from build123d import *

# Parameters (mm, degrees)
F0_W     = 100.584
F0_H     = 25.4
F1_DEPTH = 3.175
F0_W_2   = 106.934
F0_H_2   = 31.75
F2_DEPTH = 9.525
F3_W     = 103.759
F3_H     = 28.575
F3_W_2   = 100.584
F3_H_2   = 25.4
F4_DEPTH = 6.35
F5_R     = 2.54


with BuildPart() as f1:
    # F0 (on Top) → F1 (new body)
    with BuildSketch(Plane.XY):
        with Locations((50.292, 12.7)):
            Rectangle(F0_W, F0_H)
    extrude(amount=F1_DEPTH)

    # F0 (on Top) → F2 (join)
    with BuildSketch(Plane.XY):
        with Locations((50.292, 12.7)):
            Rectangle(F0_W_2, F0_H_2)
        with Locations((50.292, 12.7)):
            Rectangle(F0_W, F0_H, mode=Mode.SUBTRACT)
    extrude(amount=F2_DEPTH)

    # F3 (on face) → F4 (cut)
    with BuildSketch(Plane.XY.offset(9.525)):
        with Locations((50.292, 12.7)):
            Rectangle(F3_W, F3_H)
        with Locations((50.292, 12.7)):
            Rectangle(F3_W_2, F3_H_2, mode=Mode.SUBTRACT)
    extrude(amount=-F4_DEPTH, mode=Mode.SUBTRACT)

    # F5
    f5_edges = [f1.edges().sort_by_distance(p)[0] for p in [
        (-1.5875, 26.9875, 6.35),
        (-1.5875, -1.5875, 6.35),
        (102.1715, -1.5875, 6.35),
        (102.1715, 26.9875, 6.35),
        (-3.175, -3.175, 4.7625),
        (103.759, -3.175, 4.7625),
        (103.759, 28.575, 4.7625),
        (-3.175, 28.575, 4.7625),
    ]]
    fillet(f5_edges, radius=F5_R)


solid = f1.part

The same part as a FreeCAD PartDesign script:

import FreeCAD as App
import Part
import Sketcher
Q = App.Units.Quantity


def edges_at(feature, points):
    """Names of the edges that pass closest to the given points."""
    edges = feature.Shape.Edges
    near = lambda p: min(range(len(edges)), key=lambda i: edges[i].distToShape(Part.Vertex(*p))[0])
    return sorted({f"Edge{near(p) + 1}" for p in points})


def add_polygon(sketch, points):
    """Adds a closed chain of lines whose ends are joined by coincident constraints."""
    first, n = sketch.GeometryCount, len(points)
    for a, b in zip(points, points[1:] + points[:1]):
        sketch.addGeometry(Part.LineSegment(App.Vector(*a, 0), App.Vector(*b, 0)), False)
    for i in range(n):
        sketch.addConstraint(Sketcher.Constraint("Coincident", first + i, 2, first + (i + 1) % n, 1))

doc = App.newDocument("Part")
body = doc.addObject("PartDesign::Body", "Body")

# Sketch on XY plane
sketch1 = doc.addObject("Sketcher::SketchObject", "Sketch")
body.addObject(sketch1)
sketch1.AttachmentSupport = (doc.XY_Plane, [""])
sketch1.MapMode = "FlatFace"
add_polygon(sketch1, [(0, 25), (0, 0), (101, 0), (101, 25)])  # lines 0-3
sketch1.addConstraint([
    Sketcher.Constraint("Vertical", 0),
    Sketcher.Constraint("Horizontal", 1),
    Sketcher.Constraint("Vertical", 2),
    Sketcher.Constraint("Horizontal", 3),
    Sketcher.Constraint("Coincident", 0, 2, -1, 1),
    Sketcher.Constraint("DistanceY", 0, 2, 0, 1, Q("1 in")),
    Sketcher.Constraint("DistanceX", 1, 1, 1, 2, Q("3.96 in")),
])
pad1 = doc.addObject("PartDesign::Pad", "Pad")
body.addObject(pad1)
pad1.Profile = sketch1
pad1.Length = Q("0.125 in")

# Sketch on XY plane
sketch2 = doc.addObject("Sketcher::SketchObject", "Sketch001")
body.addObject(sketch2)
sketch2.AttachmentSupport = (doc.XY_Plane, [""])
sketch2.MapMode = "FlatFace"
add_polygon(sketch2, [(-3, 29), (-3, -3), (104, -3), (104, 29)])  # lines 0-3
add_polygon(sketch2, [(101, 0), (0, 0), (0, 25), (101, 25)])  # lines 4-7
sketch2.addConstraint([
    Sketcher.Constraint("Vertical", 0),
    Sketcher.Constraint("Horizontal", 1),
    Sketcher.Constraint("Vertical", 2),
    Sketcher.Constraint("Horizontal", 3),
    Sketcher.Constraint("Horizontal", 4),
    Sketcher.Constraint("Vertical", 5),
    Sketcher.Constraint("Horizontal", 6),
    Sketcher.Constraint("Vertical", 7),
    Sketcher.Constraint("Coincident", 4, 2, -1, 1),
    Sketcher.Constraint("DistanceY", 5, 1, 5, 2, Q("1 in")),
    Sketcher.Constraint("DistanceX", 1, 1, 1, 2, Q("4.21 in")),
    Sketcher.Constraint("DistanceX", 4, 2, 4, 1, Q("3.96 in")),
    Sketcher.Constraint("DistanceY", 0, 2, 0, 1, Q("1.25 in")),
    Sketcher.Constraint("DistanceX", 0, 2, -1, 1, Q("0.125 in")),
    Sketcher.Constraint("DistanceY", 0, 2, -1, 1, Q("0.125 in")),
])
pad2 = doc.addObject("PartDesign::Pad", "Pad001")
body.addObject(pad2)
pad2.Profile = sketch2
pad2.Length = Q("0.375 in")

# Sketch on XY plane
sketch3 = doc.addObject("Sketcher::SketchObject", "Sketch002")
body.addObject(sketch3)
sketch3.AttachmentSupport = (doc.XY_Plane, [""])
sketch3.MapMode = "FlatFace"
sketch3.AttachmentOffset = App.Placement(App.Vector(0, 0, 0.375 * 25.4), App.Rotation())
add_polygon(sketch3, [(-2, 27), (-2, -2), (102, -2), (102, 27)])  # lines 0-3
add_polygon(sketch3, [(101, 0), (0, 0), (0, 25), (101, 25)])  # lines 4-7
sketch3.addConstraint([
    Sketcher.Constraint("Vertical", 0),
    Sketcher.Constraint("Horizontal", 1),
    Sketcher.Constraint("Vertical", 2),
    Sketcher.Constraint("Horizontal", 3),
    Sketcher.Constraint("Horizontal", 4),
    Sketcher.Constraint("Vertical", 5),
    Sketcher.Constraint("Horizontal", 6),
    Sketcher.Constraint("Vertical", 7),
    Sketcher.Constraint("Coincident", 4, 2, -1, 1),
    Sketcher.Constraint("DistanceY", 5, 1, 5, 2, Q("1 in")),
    Sketcher.Constraint("DistanceX", 4, 2, 4, 1, Q("3.96 in")),
    Sketcher.Constraint("DistanceX", 1, 1, 1, 2, Q("4.085 in")),
    Sketcher.Constraint("DistanceY", 0, 2, 0, 1, Q("1.125 in")),
    Sketcher.Constraint("DistanceX", 0, 2, -1, 1, Q("0.0625 in")),
    Sketcher.Constraint("DistanceY", 0, 2, -1, 1, Q("0.0625 in")),
])
pocket1 = doc.addObject("PartDesign::Pocket", "Pocket")
body.addObject(pocket1)
pocket1.Profile = sketch3
pocket1.Length = Q("0.25 in")
doc.recompute()

fillet = doc.addObject("PartDesign::Fillet", "Fillet")
body.addObject(fillet)
fillet.Base = (pocket1, edges_at(pocket1, [
    (-1.587, 26.988, 6.35),
    (-1.587, -1.587, 6.35),
    (102.171, -1.587, 6.35),
    (102.171, 26.988, 6.35),
    (-3.175, -3.175, 4.763),
    (103.759, -3.175, 4.763),
    (103.759, 28.575, 4.763),
    (-3.175, 28.575, 4.763),
]))
fillet.Radius = Q("0.1 in")

doc.recompute()
